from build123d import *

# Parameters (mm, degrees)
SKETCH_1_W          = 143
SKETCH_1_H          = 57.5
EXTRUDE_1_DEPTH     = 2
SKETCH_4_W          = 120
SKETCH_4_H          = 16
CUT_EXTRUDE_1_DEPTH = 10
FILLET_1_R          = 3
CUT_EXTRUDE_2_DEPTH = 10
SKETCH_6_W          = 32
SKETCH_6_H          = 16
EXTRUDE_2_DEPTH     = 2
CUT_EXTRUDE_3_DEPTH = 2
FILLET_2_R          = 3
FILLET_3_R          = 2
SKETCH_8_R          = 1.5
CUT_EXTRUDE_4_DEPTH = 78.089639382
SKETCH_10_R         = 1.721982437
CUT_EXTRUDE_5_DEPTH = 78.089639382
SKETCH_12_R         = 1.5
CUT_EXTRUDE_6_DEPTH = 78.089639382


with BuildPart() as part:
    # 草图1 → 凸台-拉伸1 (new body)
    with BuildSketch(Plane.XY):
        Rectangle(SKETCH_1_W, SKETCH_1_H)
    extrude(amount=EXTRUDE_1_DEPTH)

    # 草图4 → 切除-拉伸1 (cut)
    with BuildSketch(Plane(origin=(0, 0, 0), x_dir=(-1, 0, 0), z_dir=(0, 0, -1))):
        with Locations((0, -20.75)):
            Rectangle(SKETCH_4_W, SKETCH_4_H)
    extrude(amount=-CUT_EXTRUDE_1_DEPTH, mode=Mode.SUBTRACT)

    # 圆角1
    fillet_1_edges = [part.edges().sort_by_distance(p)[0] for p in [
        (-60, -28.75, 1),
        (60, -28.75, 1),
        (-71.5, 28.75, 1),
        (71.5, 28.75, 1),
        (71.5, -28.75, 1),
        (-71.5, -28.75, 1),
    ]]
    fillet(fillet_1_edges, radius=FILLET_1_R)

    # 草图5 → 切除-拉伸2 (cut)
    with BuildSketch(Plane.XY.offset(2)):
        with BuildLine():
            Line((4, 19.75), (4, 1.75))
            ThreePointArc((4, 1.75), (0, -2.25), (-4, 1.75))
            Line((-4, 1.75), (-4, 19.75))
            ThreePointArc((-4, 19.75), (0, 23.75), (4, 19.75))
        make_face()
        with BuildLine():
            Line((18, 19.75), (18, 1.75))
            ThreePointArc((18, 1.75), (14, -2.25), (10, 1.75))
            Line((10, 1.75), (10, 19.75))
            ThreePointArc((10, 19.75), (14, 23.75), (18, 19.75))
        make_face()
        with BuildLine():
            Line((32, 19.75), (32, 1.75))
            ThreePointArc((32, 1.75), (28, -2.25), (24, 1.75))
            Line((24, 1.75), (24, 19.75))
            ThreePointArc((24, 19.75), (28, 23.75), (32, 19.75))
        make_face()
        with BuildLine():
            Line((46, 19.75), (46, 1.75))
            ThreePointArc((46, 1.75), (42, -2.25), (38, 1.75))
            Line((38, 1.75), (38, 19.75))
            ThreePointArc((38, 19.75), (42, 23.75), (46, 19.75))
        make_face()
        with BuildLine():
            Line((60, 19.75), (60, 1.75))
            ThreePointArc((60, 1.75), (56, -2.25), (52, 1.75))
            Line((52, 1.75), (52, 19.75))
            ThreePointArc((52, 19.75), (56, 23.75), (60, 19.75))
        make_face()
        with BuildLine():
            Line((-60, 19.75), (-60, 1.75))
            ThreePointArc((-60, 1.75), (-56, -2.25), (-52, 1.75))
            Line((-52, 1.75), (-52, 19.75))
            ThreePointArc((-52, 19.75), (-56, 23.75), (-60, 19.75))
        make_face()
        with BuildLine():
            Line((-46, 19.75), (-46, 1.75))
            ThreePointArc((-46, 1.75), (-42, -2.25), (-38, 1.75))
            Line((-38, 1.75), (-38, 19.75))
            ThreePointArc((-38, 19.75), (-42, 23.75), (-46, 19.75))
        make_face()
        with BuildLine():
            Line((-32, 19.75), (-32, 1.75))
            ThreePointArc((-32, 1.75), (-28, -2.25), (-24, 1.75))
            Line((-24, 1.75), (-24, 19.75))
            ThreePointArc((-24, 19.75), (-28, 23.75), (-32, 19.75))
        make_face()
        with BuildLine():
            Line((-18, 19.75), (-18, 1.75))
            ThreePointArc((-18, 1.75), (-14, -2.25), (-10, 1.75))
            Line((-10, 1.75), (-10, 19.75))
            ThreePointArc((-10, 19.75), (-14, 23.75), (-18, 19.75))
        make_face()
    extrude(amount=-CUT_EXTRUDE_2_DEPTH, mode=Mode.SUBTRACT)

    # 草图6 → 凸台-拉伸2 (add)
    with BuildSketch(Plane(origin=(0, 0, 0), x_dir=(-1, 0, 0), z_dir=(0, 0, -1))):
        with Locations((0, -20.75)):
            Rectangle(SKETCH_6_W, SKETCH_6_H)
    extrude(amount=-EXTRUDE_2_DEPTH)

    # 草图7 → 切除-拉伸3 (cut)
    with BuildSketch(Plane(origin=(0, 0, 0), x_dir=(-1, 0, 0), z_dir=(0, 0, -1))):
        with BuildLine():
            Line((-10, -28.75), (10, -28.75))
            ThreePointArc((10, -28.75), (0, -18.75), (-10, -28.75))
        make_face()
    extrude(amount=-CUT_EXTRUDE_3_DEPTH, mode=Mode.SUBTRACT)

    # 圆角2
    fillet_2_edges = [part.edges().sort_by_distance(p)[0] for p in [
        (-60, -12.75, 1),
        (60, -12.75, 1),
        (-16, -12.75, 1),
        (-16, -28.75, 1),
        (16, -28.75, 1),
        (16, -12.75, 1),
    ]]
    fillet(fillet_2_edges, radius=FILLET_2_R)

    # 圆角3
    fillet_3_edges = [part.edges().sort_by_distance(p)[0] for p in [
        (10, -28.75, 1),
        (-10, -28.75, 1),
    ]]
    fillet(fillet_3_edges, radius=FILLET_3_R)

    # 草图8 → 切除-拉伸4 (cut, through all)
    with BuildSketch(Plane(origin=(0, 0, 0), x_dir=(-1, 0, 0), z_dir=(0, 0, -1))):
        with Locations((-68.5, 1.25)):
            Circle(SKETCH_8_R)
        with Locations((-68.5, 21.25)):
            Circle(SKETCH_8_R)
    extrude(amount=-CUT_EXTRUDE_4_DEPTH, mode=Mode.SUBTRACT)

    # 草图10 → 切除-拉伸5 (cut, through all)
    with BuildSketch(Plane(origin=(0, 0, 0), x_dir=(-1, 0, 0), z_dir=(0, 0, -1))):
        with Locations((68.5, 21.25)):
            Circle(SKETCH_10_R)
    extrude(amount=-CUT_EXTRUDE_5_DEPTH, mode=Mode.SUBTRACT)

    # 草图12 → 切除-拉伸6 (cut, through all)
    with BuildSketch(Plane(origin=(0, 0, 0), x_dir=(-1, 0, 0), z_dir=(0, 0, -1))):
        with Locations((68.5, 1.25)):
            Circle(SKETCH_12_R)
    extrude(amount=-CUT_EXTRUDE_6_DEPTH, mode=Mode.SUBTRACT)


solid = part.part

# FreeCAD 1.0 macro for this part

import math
import FreeCAD as App
import Part
import Sketcher


def edges_at(feature, points):
    """Names of the edges that pass closest to the given points."""
    edges = feature.Shape.Edges
    near = lambda p: min(range(len(edges)), key=lambda i: edges[i].distToShape(Part.Vertex(*p))[0])
    return sorted({f"Edge{near(p) + 1}" for p in points})


def add_polygon(sketch, points):
    """Adds a closed chain of lines whose ends are joined by coincident constraints."""
    first, n = sketch.GeometryCount, len(points)
    for a, b in zip(points, points[1:] + points[:1]):
        sketch.addGeometry(Part.LineSegment(App.Vector(*a, 0), App.Vector(*b, 0)), False)
    for i in range(n):
        sketch.addConstraint(Sketcher.Constraint("Coincident", first + i, 2, first + (i + 1) % n, 1))

doc = App.newDocument("Part")
body = doc.addObject("PartDesign::Body", "Body")

sketch1 = body.newObject("Sketcher::SketchObject", "Sketch")
sketch1.AttachmentSupport = (doc.getObject("XY_Plane"), [""])
sketch1.MapMode = "FlatFace"
add_polygon(sketch1, [(-72, 29), (-72, -29), (72, -29), (72, 29)])
sketch1.addConstraint(Sketcher.Constraint("Vertical", 0))
sketch1.addConstraint(Sketcher.Constraint("Horizontal", 1))
sketch1.addConstraint(Sketcher.Constraint("Vertical", 2))
sketch1.addConstraint(Sketcher.Constraint("Horizontal", 3))
sketch1.addConstraint(Sketcher.Constraint("Symmetric", 0, 2, 2, 2, -1, 1))
sketch1.addConstraint(Sketcher.Constraint("DistanceX", 1, 1, 1, 2, 143.0))
sketch1.addConstraint(Sketcher.Constraint("DistanceY", 0, 2, 0, 1, 57.5))
pad1 = body.newObject("PartDesign::Pad", "Pad")
pad1.Profile = sketch1
pad1.Length = 2

sketch2 = body.newObject("Sketcher::SketchObject", "Sketch001")
sketch2.AttachmentSupport = (doc.getObject("XY_Plane"), [""])
sketch2.MapMode = "FlatFace"
add_polygon(sketch2, [(60, -13), (60, -29), (-60, -29), (-60, -13)])
sketch2.addConstraint(Sketcher.Constraint("Vertical", 0))
sketch2.addConstraint(Sketcher.Constraint("Horizontal", 1))
sketch2.addConstraint(Sketcher.Constraint("Vertical", 2))
sketch2.addConstraint(Sketcher.Constraint("Horizontal", 3))
sketch2.addConstraint(Sketcher.Constraint("DistanceX", 1, 2, 1, 1, 120.0))
sketch2.addConstraint(Sketcher.Constraint("DistanceY", 0, 2, 0, 1, 16.0))
sketch2.addConstraint(Sketcher.Constraint("DistanceX", -1, 1, 0, 2, 60.0))
sketch2.addConstraint(Sketcher.Constraint("DistanceY", 0, 2, -1, 1, 28.75))
pocket1 = body.newObject("PartDesign::Pocket", "Pocket")
pocket1.Profile = sketch2
pocket1.Length = 10
pocket1.Reversed = True
doc.recompute()

fillet = body.newObject("PartDesign::Fillet", "Fillet")
fillet.Base = (pocket1, edges_at(pocket1, [
    (-60, -28.75, 1),
    (60, -28.75, 1),
    (-71.5, 28.75, 1),
    (71.5, 28.75, 1),
    (71.5, -28.75, 1),
    (-71.5, -28.75, 1),
]))
fillet.Radius = 3

sketch3 = body.newObject("Sketcher::SketchObject", "Sketch002")
sketch3.AttachmentSupport = (doc.getObject("XY_Plane"), [""])
sketch3.MapMode = "FlatFace"
sketch3.AttachmentOffset = App.Placement(App.Vector(0, 0, 2), App.Rotation())
sketch3.addGeometry(Part.LineSegment(App.Vector(4, 1.8, 0), App.Vector(4, 19.8, 0)), False)
sketch3.addGeometry(Part.ArcOfCircle(Part.Circle(App.Vector(0, 19.8, 0), App.Vector(0, 0, 1), 4), math.radians(0), math.radians(180)), False)
sketch3.addGeometry(Part.LineSegment(App.Vector(-4, 19.8, 0), App.Vector(-4, 1.8, 0)), False)
sketch3.addGeometry(Part.ArcOfCircle(Part.Circle(App.Vector(0, 1.8, 0), App.Vector(0, 0, 1), 4), math.radians(180), math.radians(360)), False)
sketch3.addGeometry(Part.LineSegment(App.Vector(18, 1.8, 0), App.Vector(18, 19.8, 0)), False)
sketch3.addGeometry(Part.ArcOfCircle(Part.Circle(App.Vector(14, 19.8, 0), App.Vector(0, 0, 1), 4), math.radians(0), math.radians(180)), False)
sketch3.addGeometry(Part.LineSegment(App.Vector(10, 19.8, 0), App.Vector(10, 1.8, 0)), False)
sketch3.addGeometry(Part.ArcOfCircle(Part.Circle(App.Vector(14, 1.8, 0), App.Vector(0, 0, 1), 4), math.radians(180), math.radians(360)), False)
sketch3.addGeometry(Part.LineSegment(App.Vector(32, 1.8, 0), App.Vector(32, 19.8, 0)), False)
sketch3.addGeometry(Part.ArcOfCircle(Part.Circle(App.Vector(28, 19.8, 0), App.Vector(0, 0, 1), 4), math.radians(0), math.radians(180)), False)
sketch3.addGeometry(Part.LineSegment(App.Vector(24, 19.8, 0), App.Vector(24, 1.8, 0)), False)
sketch3.addGeometry(Part.ArcOfCircle(Part.Circle(App.Vector(28, 1.8, 0), App.Vector(0, 0, 1), 4), math.radians(180), math.radians(360)), False)
sketch3.addGeometry(Part.LineSegment(App.Vector(46, 1.8, 0), App.Vector(46, 19.8, 0)), False)
sketch3.addGeometry(Part.ArcOfCircle(Part.Circle(App.Vector(42, 19.8, 0), App.Vector(0, 0, 1), 4), math.radians(0), math.radians(180)), False)
sketch3.addGeometry(Part.LineSegment(App.Vector(38, 19.8, 0), App.Vector(38, 1.8, 0)), False)
sketch3.addGeometry(Part.ArcOfCircle(Part.Circle(App.Vector(42, 1.8, 0), App.Vector(0, 0, 1), 4), math.radians(180), math.radians(360)), False)
sketch3.addGeometry(Part.LineSegment(App.Vector(60, 1.8, 0), App.Vector(60, 19.8, 0)), False)
sketch3.addGeometry(Part.ArcOfCircle(Part.Circle(App.Vector(56, 19.8, 0), App.Vector(0, 0, 1), 4), math.radians(0), math.radians(180)), False)
sketch3.addGeometry(Part.LineSegment(App.Vector(52, 19.8, 0), App.Vector(52, 1.8, 0)), False)
sketch3.addGeometry(Part.ArcOfCircle(Part.Circle(App.Vector(56, 1.8, 0), App.Vector(0, 0, 1), 4), math.radians(180), math.radians(360)), False)
sketch3.addGeometry(Part.LineSegment(App.Vector(-60, 19.8, 0), App.Vector(-60, 1.8, 0)), False)
sketch3.addGeometry(Part.ArcOfCircle(Part.Circle(App.Vector(-56, 1.8, 0), App.Vector(0, 0, 1), 4), math.radians(180), math.radians(360)), False)
sketch3.addGeometry(Part.LineSegment(App.Vector(-52, 1.8, 0), App.Vector(-52, 19.8, 0)), False)
sketch3.addGeometry(Part.ArcOfCircle(Part.Circle(App.Vector(-56, 19.8, 0), App.Vector(0, 0, 1), 4), math.radians(0), math.radians(180)), False)
sketch3.addGeometry(Part.LineSegment(App.Vector(-46, 19.8, 0), App.Vector(-46, 1.8, 0)), False)
sketch3.addGeometry(Part.ArcOfCircle(Part.Circle(App.Vector(-42, 1.8, 0), App.Vector(0, 0, 1), 4), math.radians(180), math.radians(360)), False)
sketch3.addGeometry(Part.LineSegment(App.Vector(-38, 1.8, 0), App.Vector(-38, 19.8, 0)), False)
sketch3.addGeometry(Part.ArcOfCircle(Part.Circle(App.Vector(-42, 19.8, 0), App.Vector(0, 0, 1), 4), math.radians(0), math.radians(180)), False)
sketch3.addGeometry(Part.LineSegment(App.Vector(-32, 19.8, 0), App.Vector(-32, 1.8, 0)), False)
sketch3.addGeometry(Part.ArcOfCircle(Part.Circle(App.Vector(-28, 1.8, 0), App.Vector(0, 0, 1), 4), math.radians(180), math.radians(360)), False)
sketch3.addGeometry(Part.LineSegment(App.Vector(-24, 1.8, 0), App.Vector(-24, 19.8, 0)), False)
sketch3.addGeometry(Part.ArcOfCircle(Part.Circle(App.Vector(-28, 19.8, 0), App.Vector(0, 0, 1), 4), math.radians(0), math.radians(180)), False)
sketch3.addGeometry(Part.LineSegment(App.Vector(-18, 19.8, 0), App.Vector(-18, 1.8, 0)), False)
sketch3.addGeometry(Part.ArcOfCircle(Part.Circle(App.Vector(-14, 1.8, 0), App.Vector(0, 0, 1), 4), math.radians(180), math.radians(360)), False)
sketch3.addGeometry(Part.LineSegment(App.Vector(-10, 1.8, 0), App.Vector(-10, 19.8, 0)), False)
sketch3.addGeometry(Part.ArcOfCircle(Part.Circle(App.Vector(-14, 19.8, 0), App.Vector(0, 0, 1), 4), math.radians(0), math.radians(180)), False)
sketch3.addConstraint(Sketcher.Constraint("Tangent", 0, 2, 1, 1))
sketch3.addConstraint(Sketcher.Constraint("Tangent", 1, 2, 2, 1))
sketch3.addConstraint(Sketcher.Constraint("Tangent", 2, 2, 3, 1))
sketch3.addConstraint(Sketcher.Constraint("Tangent", 3, 2, 0, 1))
sketch3.addConstraint(Sketcher.Constraint("Tangent", 4, 2, 5, 1))
sketch3.addConstraint(Sketcher.Constraint("Tangent", 5, 2, 6, 1))
sketch3.addConstraint(Sketcher.Constraint("Tangent", 6, 2, 7, 1))
sketch3.addConstraint(Sketcher.Constraint("Tangent", 7, 2, 4, 1))
sketch3.addConstraint(Sketcher.Constraint("Tangent", 8, 2, 9, 1))
sketch3.addConstraint(Sketcher.Constraint("Tangent", 9, 2, 10, 1))
sketch3.addConstraint(Sketcher.Constraint("Tangent", 10, 2, 11, 1))
sketch3.addConstraint(Sketcher.Constraint("Tangent", 11, 2, 8, 1))
sketch3.addConstraint(Sketcher.Constraint("Tangent", 12, 2, 13, 1))
sketch3.addConstraint(Sketcher.Constraint("Tangent", 13, 2, 14, 1))
sketch3.addConstraint(Sketcher.Constraint("Tangent", 14, 2, 15, 1))
sketch3.addConstraint(Sketcher.Constraint("Tangent", 15, 2, 12, 1))
sketch3.addConstraint(Sketcher.Constraint("Tangent", 16, 2, 17, 1))
sketch3.addConstraint(Sketcher.Constraint("Tangent", 17, 2, 18, 1))
sketch3.addConstraint(Sketcher.Constraint("Tangent", 18, 2, 19, 1))
sketch3.addConstraint(Sketcher.Constraint("Tangent", 19, 2, 16, 1))
sketch3.addConstraint(Sketcher.Constraint("Tangent", 20, 2, 21, 1))
sketch3.addConstraint(Sketcher.Constraint("Tangent", 21, 2, 22, 1))
sketch3.addConstraint(Sketcher.Constraint("Tangent", 22, 2, 23, 1))
sketch3.addConstraint(Sketcher.Constraint("Tangent", 23, 2, 20, 1))
sketch3.addConstraint(Sketcher.Constraint("Tangent", 24, 2, 25, 1))
sketch3.addConstraint(Sketcher.Constraint("Tangent", 25, 2, 26, 1))
sketch3.addConstraint(Sketcher.Constraint("Tangent", 26, 2, 27, 1))
sketch3.addConstraint(Sketcher.Constraint("Tangent", 27, 2, 24, 1))
sketch3.addConstraint(Sketcher.Constraint("Tangent", 28, 2, 29, 1))
sketch3.addConstraint(Sketcher.Constraint("Tangent", 29, 2, 30, 1))
sketch3.addConstraint(Sketcher.Constraint("Tangent", 30, 2, 31, 1))
sketch3.addConstraint(Sketcher.Constraint("Tangent", 31, 2, 28, 1))
sketch3.addConstraint(Sketcher.Constraint("Tangent", 32, 2, 33, 1))
sketch3.addConstraint(Sketcher.Constraint("Tangent", 33, 2, 34, 1))
sketch3.addConstraint(Sketcher.Constraint("Tangent", 34, 2, 35, 1))
sketch3.addConstraint(Sketcher.Constraint("Tangent", 35, 2, 32, 1))
sketch3.addConstraint(Sketcher.Constraint("Vertical", 0))
sketch3.addConstraint(Sketcher.Constraint("Vertical", 2))
sketch3.addConstraint(Sketcher.Constraint("Vertical", 4))
sketch3.addConstraint(Sketcher.Constraint("Vertical", 6))
sketch3.addConstraint(Sketcher.Constraint("Vertical", 8))
sketch3.addConstraint(Sketcher.Constraint("Vertical", 10))
sketch3.addConstraint(Sketcher.Constraint("Vertical", 12))
sketch3.addConstraint(Sketcher.Constraint("Vertical", 14))
sketch3.addConstraint(Sketcher.Constraint("Vertical", 16))
sketch3.addConstraint(Sketcher.Constraint("Vertical", 18))
sketch3.addConstraint(Sketcher.Constraint("Vertical", 20))
sketch3.addConstraint(Sketcher.Constraint("Vertical", 22))
sketch3.addConstraint(Sketcher.Constraint("Vertical", 24))
sketch3.addConstraint(Sketcher.Constraint("Vertical", 26))
sketch3.addConstraint(Sketcher.Constraint("Vertical", 28))
sketch3.addConstraint(Sketcher.Constraint("Vertical", 30))
sketch3.addConstraint(Sketcher.Constraint("Vertical", 32))
sketch3.addConstraint(Sketcher.Constraint("Vertical", 34))
sketch3.addConstraint(Sketcher.Constraint("Equal", 3, 5))
sketch3.addConstraint(Sketcher.Constraint("Equal", 7, 9))
sketch3.addConstraint(Sketcher.Constraint("Equal", 11, 13))
sketch3.addConstraint(Sketcher.Constraint("Equal", 15, 17))
sketch3.addConstraint(Sketcher.Constraint("Equal", 19, 21))
sketch3.addConstraint(Sketcher.Constraint("Equal", 23, 25))
sketch3.addConstraint(Sketcher.Constraint("Equal", 27, 29))
sketch3.addConstraint(Sketcher.Constraint("Equal", 31, 33))
sketch3.addConstraint(Sketcher.Constraint("Symmetric", 19, 3, 21, 3, -2))
sketch3.addConstraint(Sketcher.Constraint("Symmetric", 15, 3, 25, 3, -2))
sketch3.addConstraint(Sketcher.Constraint("Symmetric", 11, 3, 29, 3, -2))
sketch3.addConstraint(Sketcher.Constraint("Symmetric", 7, 3, 33, 3, -2))
sketch3.addConstraint(Sketcher.Constraint("PointOnObject", 1, 3, -2))
sketch3.addConstraint(Sketcher.Constraint("Horizontal", 1, 3, 5, 3))
sketch3.addConstraint(Sketcher.Constraint("Horizontal", 3, 3, 7, 3))
sketch3.addConstraint(Sketcher.Constraint("Horizontal", 5, 3, 9, 3))
sketch3.addConstraint(Sketcher.Constraint("Horizontal", 7, 3, 11, 3))
sketch3.addConstraint(Sketcher.Constraint("Horizontal", 9, 3, 13, 3))
sketch3.addConstraint(Sketcher.Constraint("Horizontal", 11, 3, 15, 3))
sketch3.addConstraint(Sketcher.Constraint("Horizontal", 13, 3, 17, 3))
sketch3.addConstraint(Sketcher.Constraint("Horizontal", 15, 3, 19, 3))
sketch3.addConstraint(Sketcher.Constraint("Horizontal", 17, 3, 23, 3))
sketch3.addConstraint(Sketcher.Constraint("Horizontal", 23, 3, 27, 3))
sketch3.addConstraint(Sketcher.Constraint("Horizontal", 27, 3, 31, 3))
sketch3.addConstraint(Sketcher.Constraint("Horizontal", 31, 3, 35, 3))
sketch3.addConstraint(Sketcher.Constraint("Radius", 1, 4.0))
sketch3.addConstraint(Sketcher.Constraint("DistanceY", 0, 1, 0, 2, 18.0))
sketch3.addConstraint(Sketcher.Constraint("DistanceX", -1, 1, 5, 3, 14.0))
sketch3.addConstraint(Sketcher.Constraint("DistanceX", -1, 1, 9, 3, 28.0))
sketch3.addConstraint(Sketcher.Constraint("DistanceX", -1, 1, 13, 3, 42.0))
sketch3.addConstraint(Sketcher.Constraint("DistanceX", -1, 1, 17, 3, 56.0))
sketch3.addConstraint(Sketcher.Constraint("DistanceY", -1, 1, 1, 3, 19.75))
pocket2 = body.newObject("PartDesign::Pocket", "Pocket001")
pocket2.Profile = sketch3
pocket2.Length = 10

sketch4 = body.newObject("Sketcher::SketchObject", "Sketch003")
sketch4.AttachmentSupport = (doc.getObject("XY_Plane"), [""])
sketch4.MapMode = "FlatFace"
add_polygon(sketch4, [(16, -13), (16, -29), (-16, -29), (-16, -13)])
sketch4.addConstraint(Sketcher.Constraint("Vertical", 0))
sketch4.addConstraint(Sketcher.Constraint("Horizontal", 1))
sketch4.addConstraint(Sketcher.Constraint("Vertical", 2))
sketch4.addConstraint(Sketcher.Constraint("Horizontal", 3))
sketch4.addConstraint(Sketcher.Constraint("DistanceX", 1, 2, 1, 1, 32.0))
sketch4.addConstraint(Sketcher.Constraint("DistanceY", 0, 2, 0, 1, 16.0))
sketch4.addConstraint(Sketcher.Constraint("DistanceX", -1, 1, 0, 2, 16.0))
sketch4.addConstraint(Sketcher.Constraint("DistanceY", 0, 2, -1, 1, 28.75))
pad2 = body.newObject("PartDesign::Pad", "Pad001")
pad2.Profile = sketch4
pad2.Length = 2

sketch5 = body.newObject("Sketcher::SketchObject", "Sketch004")
sketch5.AttachmentSupport = (doc.getObject("XY_Plane"), [""])
sketch5.MapMode = "FlatFace"
sketch5.addGeometry(Part.LineSegment(App.Vector(10, -29, 0), App.Vector(-10, -29, 0)), False)
sketch5.addGeometry(Part.ArcOfCircle(Part.Circle(App.Vector(0, -29, 0), App.Vector(0, 0, 1), 10), math.radians(0), math.radians(180)), False)
sketch5.addConstraint(Sketcher.Constraint("Coincident", 0, 1, 1, 1))
sketch5.addConstraint(Sketcher.Constraint("Coincident", 1, 2, 0, 2))
sketch5.addConstraint(Sketcher.Constraint("Horizontal", 0))
sketch5.addConstraint(Sketcher.Constraint("PointOnObject", 1, 3, -2))
sketch5.addConstraint(Sketcher.Constraint("Horizontal", 1, 3, 0, 1))
sketch5.addConstraint(Sketcher.Constraint("Radius", 1, 10.0))
sketch5.addConstraint(Sketcher.Constraint("DistanceY", 1, 3, -1, 1, 28.75))
pocket3 = body.newObject("PartDesign::Pocket", "Pocket002")
pocket3.Profile = sketch5
pocket3.Length = 2
pocket3.Reversed = True
doc.recompute()

fillet2 = body.newObject("PartDesign::Fillet", "Fillet001")
fillet2.Base = (pocket3, edges_at(pocket3, [
    (-60, -12.75, 1),
    (60, -12.75, 1),
    (-16, -12.75, 1),
    (-16, -28.75, 1),
    (16, -28.75, 1),
    (16, -12.75, 1),
]))
fillet2.Radius = 3
doc.recompute()

fillet3 = body.newObject("PartDesign::Fillet", "Fillet002")
fillet3.Base = (fillet2, edges_at(fillet2, [(10, -28.75, 1), (-10, -28.75, 1)]))
fillet3.Radius = 2

sketch6 = body.newObject("Sketcher::SketchObject", "Sketch005")
sketch6.AttachmentSupport = (doc.getObject("XY_Plane"), [""])
sketch6.MapMode = "FlatFace"
sketch6.addGeometry(Part.Circle(App.Vector(68.5, 1.2, 0), App.Vector(0, 0, 1), 1.5), False)
sketch6.addGeometry(Part.Circle(App.Vector(68.5, 21.2, 0), App.Vector(0, 0, 1), 1.5), False)
sketch6.addConstraint(Sketcher.Constraint("Equal", 0, 1))
sketch6.addConstraint(Sketcher.Constraint("Vertical", 0, 3, 1, 3))
sketch6.addConstraint(Sketcher.Constraint("Diameter", 0, 3.0))
sketch6.addConstraint(Sketcher.Constraint("DistanceY", 0, 3, 1, 3, 20.0))
sketch6.addConstraint(Sketcher.Constraint("DistanceX", -1, 1, 0, 3, 68.5))
sketch6.addConstraint(Sketcher.Constraint("DistanceY", -1, 1, 0, 3, 1.25))
pocket4 = body.newObject("PartDesign::Pocket", "Pocket003")
pocket4.Profile = sketch6
pocket4.Type = "ThroughAll"
pocket4.Reversed = True

sketch7 = body.newObject("Sketcher::SketchObject", "Sketch006")
sketch7.AttachmentSupport = (doc.getObject("XY_Plane"), [""])
sketch7.MapMode = "FlatFace"
sketch7.addGeometry(Part.Circle(App.Vector(-68.5, 21.2, 0), App.Vector(0, 0, 1), 1.7), False)
sketch7.addConstraint(Sketcher.Constraint("DistanceX", 0, 3, -1, 1, 68.5))
sketch7.addConstraint(Sketcher.Constraint("DistanceY", -1, 1, 0, 3, 21.25))
sketch7.addConstraint(Sketcher.Constraint("Diameter", 0, 3.443965))
pocket5 = body.newObject("PartDesign::Pocket", "Pocket004")
pocket5.Profile = sketch7
pocket5.Type = "ThroughAll"
pocket5.Reversed = True

sketch8 = body.newObject("Sketcher::SketchObject", "Sketch007")
sketch8.AttachmentSupport = (doc.getObject("XY_Plane"), [""])
sketch8.MapMode = "FlatFace"
sketch8.addGeometry(Part.Circle(App.Vector(-68.5, 1.2, 0), App.Vector(0, 0, 1), 1.5), False)
sketch8.addConstraint(Sketcher.Constraint("Diameter", 0, 3.0))
sketch8.addConstraint(Sketcher.Constraint("DistanceX", 0, 3, -1, 1, 68.5))
sketch8.addConstraint(Sketcher.Constraint("DistanceY", -1, 1, 0, 3, 1.25))
pocket6 = body.newObject("PartDesign::Pocket", "Pocket005")
pocket6.Profile = sketch8
pocket6.Type = "ThroughAll"
pocket6.Reversed = True

doc.recompute()
